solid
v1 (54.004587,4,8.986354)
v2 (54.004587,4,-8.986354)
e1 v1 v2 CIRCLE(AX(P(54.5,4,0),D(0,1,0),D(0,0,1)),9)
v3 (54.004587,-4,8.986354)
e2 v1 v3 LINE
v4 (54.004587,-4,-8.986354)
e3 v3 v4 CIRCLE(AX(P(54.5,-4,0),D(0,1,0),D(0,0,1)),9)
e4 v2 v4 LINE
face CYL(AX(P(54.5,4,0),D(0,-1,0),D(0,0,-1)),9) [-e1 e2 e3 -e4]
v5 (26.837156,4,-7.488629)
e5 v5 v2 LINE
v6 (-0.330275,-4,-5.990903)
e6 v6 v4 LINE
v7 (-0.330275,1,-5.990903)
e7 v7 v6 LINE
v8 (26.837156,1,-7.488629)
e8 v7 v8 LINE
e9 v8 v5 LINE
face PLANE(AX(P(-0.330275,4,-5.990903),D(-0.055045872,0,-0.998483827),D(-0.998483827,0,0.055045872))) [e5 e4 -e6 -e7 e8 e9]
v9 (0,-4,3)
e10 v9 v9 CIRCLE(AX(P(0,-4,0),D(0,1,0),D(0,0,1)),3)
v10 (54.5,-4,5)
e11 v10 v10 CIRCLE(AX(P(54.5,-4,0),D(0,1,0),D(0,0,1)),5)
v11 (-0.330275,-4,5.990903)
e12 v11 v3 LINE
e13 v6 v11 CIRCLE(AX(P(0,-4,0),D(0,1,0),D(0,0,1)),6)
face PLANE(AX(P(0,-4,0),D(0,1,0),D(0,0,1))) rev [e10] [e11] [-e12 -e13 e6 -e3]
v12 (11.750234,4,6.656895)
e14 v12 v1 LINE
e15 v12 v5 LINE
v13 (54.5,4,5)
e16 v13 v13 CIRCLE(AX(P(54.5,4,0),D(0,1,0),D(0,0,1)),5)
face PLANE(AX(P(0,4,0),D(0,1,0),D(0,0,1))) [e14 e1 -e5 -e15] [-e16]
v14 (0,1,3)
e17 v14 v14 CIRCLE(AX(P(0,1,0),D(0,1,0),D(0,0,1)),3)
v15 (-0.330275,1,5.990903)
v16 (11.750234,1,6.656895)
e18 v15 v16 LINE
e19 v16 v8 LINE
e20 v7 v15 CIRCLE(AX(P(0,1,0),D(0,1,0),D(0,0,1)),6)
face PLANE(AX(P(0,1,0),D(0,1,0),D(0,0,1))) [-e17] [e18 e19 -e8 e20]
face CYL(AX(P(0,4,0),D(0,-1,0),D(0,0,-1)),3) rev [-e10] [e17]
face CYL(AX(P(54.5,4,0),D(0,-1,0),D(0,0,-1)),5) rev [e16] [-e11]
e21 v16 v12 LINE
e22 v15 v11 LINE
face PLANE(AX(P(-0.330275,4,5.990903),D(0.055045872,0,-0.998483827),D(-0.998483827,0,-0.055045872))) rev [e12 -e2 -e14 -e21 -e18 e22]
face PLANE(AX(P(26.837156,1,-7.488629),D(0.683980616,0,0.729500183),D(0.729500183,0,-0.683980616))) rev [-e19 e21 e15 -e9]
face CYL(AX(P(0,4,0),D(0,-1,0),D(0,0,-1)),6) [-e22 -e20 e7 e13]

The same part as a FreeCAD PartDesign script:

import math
import FreeCAD as App
import Part
import Sketcher

V = App.Vector


def add_polygon(sketch, points):
    """Adds a closed chain of lines whose ends are joined by coincident constraints."""
    first, n = sketch.GeometryCount, len(points)
    for a, b in zip(points, points[1:] + points[:1]):
        sketch.addGeometry(Part.LineSegment(App.Vector(*a, 0), App.Vector(*b, 0)), False)
    for i in range(n):
        sketch.addConstraint(Sketcher.Constraint("Coincident", first + i, 2, first + (i + 1) % n, 1))

doc = App.newDocument("Part")
body = doc.addObject("PartDesign::Body", "Body")

# Sketch on XZ plane
sketch1 = body.newObject("Sketcher::SketchObject", "Sketch")
sketch1.AttachmentSupport = (doc.getObject("XZ_Plane"), [""])
sketch1.MapMode = "FlatFace"
sketch1.addGeometry([
    Part.ArcOfCircle(Part.Circle(V(0, 0, 0), V(0, 0, 1), 6), math.radians(93), math.radians(267)),  # 0
    Part.LineSegment(V(-0.3, 6, 0), V(54, 9, 0)),  # 1
    Part.ArcOfCircle(Part.Circle(V(54.5, 0, 0), V(0, 0, 1), 9), math.radians(-93), math.radians(93)),  # 2
    Part.LineSegment(V(54, -9, 0), V(-0.3, -6, 0)),  # 3
    Part.Circle(V(0, 0, 0), V(0, 0, 1), 3),  # 4
    Part.Circle(V(54.5, 0, 0), V(0, 0, 1), 5),  # 5
], False)
sketch1.addConstraint([
    Sketcher.Constraint("Tangent", 0, 1, 1, 1),
    Sketcher.Constraint("Tangent", 1, 2, 2, 2),
    Sketcher.Constraint("Tangent", 2, 1, 3, 1),
    Sketcher.Constraint("Tangent", 3, 2, 0, 2),
    Sketcher.Constraint("Coincident", 0, 3, -1, 1),
    Sketcher.Constraint("Coincident", 4, 3, -1, 1),
    Sketcher.Constraint("Coincident", 5, 3, 2, 3),
    Sketcher.Constraint("PointOnObject", 2, 3, -1),
    Sketcher.Constraint("Diameter", 4, 6.0),
    Sketcher.Constraint("Diameter", 5, 10.0),
    Sketcher.Constraint("Radius", 0, 6.0),
    Sketcher.Constraint("Radius", 2, 9.0),
    Sketcher.Constraint("DistanceX", -1, 1, 2, 3, 54.5),
])
pad1 = body.newObject("PartDesign::Pad", "Pad")
pad1.Profile = sketch1
pad1.Length = 8
pad1.Midplane = True

# Sketch on XZ plane
sketch2 = body.newObject("Sketcher::SketchObject", "Sketch001")
sketch2.AttachmentSupport = (doc.getObject("XZ_Plane"), [""])
sketch2.MapMode = "FlatFace"
sketch2.AttachmentOffset = App.Placement(V(0, 0, -4), App.Rotation())
add_polygon(sketch2, [(12, 7), (27, -7), (-13, -11), (-13, 7)])  # lines 0-3
sketch2.addConstraint([
    Sketcher.Constraint("Vertical", 2),
    Sketcher.Constraint("Horizontal", 3),
    Sketcher.Constraint("DistanceX", 3, 1, 3, 2, 24.609751),
    Sketcher.Constraint("DistanceY", 2, 1, 2, 2, 17.390337),
    Sketcher.Constraint("DistanceY", 0, 2, -1, 1, 7.488629),
    Sketcher.Constraint("DistanceX", 3, 2, 0, 2, 15.086922),
    Sketcher.Constraint("Distance", 0, 20.681176),
    Sketcher.Constraint("DistanceX", -1, 1, 0, 2, 26.837156),
])
pocket1 = body.newObject("PartDesign::Pocket", "Pocket")
pocket1.Profile = sketch2
pocket1.Length = 3
pocket1.Reversed = True

doc.recompute()
